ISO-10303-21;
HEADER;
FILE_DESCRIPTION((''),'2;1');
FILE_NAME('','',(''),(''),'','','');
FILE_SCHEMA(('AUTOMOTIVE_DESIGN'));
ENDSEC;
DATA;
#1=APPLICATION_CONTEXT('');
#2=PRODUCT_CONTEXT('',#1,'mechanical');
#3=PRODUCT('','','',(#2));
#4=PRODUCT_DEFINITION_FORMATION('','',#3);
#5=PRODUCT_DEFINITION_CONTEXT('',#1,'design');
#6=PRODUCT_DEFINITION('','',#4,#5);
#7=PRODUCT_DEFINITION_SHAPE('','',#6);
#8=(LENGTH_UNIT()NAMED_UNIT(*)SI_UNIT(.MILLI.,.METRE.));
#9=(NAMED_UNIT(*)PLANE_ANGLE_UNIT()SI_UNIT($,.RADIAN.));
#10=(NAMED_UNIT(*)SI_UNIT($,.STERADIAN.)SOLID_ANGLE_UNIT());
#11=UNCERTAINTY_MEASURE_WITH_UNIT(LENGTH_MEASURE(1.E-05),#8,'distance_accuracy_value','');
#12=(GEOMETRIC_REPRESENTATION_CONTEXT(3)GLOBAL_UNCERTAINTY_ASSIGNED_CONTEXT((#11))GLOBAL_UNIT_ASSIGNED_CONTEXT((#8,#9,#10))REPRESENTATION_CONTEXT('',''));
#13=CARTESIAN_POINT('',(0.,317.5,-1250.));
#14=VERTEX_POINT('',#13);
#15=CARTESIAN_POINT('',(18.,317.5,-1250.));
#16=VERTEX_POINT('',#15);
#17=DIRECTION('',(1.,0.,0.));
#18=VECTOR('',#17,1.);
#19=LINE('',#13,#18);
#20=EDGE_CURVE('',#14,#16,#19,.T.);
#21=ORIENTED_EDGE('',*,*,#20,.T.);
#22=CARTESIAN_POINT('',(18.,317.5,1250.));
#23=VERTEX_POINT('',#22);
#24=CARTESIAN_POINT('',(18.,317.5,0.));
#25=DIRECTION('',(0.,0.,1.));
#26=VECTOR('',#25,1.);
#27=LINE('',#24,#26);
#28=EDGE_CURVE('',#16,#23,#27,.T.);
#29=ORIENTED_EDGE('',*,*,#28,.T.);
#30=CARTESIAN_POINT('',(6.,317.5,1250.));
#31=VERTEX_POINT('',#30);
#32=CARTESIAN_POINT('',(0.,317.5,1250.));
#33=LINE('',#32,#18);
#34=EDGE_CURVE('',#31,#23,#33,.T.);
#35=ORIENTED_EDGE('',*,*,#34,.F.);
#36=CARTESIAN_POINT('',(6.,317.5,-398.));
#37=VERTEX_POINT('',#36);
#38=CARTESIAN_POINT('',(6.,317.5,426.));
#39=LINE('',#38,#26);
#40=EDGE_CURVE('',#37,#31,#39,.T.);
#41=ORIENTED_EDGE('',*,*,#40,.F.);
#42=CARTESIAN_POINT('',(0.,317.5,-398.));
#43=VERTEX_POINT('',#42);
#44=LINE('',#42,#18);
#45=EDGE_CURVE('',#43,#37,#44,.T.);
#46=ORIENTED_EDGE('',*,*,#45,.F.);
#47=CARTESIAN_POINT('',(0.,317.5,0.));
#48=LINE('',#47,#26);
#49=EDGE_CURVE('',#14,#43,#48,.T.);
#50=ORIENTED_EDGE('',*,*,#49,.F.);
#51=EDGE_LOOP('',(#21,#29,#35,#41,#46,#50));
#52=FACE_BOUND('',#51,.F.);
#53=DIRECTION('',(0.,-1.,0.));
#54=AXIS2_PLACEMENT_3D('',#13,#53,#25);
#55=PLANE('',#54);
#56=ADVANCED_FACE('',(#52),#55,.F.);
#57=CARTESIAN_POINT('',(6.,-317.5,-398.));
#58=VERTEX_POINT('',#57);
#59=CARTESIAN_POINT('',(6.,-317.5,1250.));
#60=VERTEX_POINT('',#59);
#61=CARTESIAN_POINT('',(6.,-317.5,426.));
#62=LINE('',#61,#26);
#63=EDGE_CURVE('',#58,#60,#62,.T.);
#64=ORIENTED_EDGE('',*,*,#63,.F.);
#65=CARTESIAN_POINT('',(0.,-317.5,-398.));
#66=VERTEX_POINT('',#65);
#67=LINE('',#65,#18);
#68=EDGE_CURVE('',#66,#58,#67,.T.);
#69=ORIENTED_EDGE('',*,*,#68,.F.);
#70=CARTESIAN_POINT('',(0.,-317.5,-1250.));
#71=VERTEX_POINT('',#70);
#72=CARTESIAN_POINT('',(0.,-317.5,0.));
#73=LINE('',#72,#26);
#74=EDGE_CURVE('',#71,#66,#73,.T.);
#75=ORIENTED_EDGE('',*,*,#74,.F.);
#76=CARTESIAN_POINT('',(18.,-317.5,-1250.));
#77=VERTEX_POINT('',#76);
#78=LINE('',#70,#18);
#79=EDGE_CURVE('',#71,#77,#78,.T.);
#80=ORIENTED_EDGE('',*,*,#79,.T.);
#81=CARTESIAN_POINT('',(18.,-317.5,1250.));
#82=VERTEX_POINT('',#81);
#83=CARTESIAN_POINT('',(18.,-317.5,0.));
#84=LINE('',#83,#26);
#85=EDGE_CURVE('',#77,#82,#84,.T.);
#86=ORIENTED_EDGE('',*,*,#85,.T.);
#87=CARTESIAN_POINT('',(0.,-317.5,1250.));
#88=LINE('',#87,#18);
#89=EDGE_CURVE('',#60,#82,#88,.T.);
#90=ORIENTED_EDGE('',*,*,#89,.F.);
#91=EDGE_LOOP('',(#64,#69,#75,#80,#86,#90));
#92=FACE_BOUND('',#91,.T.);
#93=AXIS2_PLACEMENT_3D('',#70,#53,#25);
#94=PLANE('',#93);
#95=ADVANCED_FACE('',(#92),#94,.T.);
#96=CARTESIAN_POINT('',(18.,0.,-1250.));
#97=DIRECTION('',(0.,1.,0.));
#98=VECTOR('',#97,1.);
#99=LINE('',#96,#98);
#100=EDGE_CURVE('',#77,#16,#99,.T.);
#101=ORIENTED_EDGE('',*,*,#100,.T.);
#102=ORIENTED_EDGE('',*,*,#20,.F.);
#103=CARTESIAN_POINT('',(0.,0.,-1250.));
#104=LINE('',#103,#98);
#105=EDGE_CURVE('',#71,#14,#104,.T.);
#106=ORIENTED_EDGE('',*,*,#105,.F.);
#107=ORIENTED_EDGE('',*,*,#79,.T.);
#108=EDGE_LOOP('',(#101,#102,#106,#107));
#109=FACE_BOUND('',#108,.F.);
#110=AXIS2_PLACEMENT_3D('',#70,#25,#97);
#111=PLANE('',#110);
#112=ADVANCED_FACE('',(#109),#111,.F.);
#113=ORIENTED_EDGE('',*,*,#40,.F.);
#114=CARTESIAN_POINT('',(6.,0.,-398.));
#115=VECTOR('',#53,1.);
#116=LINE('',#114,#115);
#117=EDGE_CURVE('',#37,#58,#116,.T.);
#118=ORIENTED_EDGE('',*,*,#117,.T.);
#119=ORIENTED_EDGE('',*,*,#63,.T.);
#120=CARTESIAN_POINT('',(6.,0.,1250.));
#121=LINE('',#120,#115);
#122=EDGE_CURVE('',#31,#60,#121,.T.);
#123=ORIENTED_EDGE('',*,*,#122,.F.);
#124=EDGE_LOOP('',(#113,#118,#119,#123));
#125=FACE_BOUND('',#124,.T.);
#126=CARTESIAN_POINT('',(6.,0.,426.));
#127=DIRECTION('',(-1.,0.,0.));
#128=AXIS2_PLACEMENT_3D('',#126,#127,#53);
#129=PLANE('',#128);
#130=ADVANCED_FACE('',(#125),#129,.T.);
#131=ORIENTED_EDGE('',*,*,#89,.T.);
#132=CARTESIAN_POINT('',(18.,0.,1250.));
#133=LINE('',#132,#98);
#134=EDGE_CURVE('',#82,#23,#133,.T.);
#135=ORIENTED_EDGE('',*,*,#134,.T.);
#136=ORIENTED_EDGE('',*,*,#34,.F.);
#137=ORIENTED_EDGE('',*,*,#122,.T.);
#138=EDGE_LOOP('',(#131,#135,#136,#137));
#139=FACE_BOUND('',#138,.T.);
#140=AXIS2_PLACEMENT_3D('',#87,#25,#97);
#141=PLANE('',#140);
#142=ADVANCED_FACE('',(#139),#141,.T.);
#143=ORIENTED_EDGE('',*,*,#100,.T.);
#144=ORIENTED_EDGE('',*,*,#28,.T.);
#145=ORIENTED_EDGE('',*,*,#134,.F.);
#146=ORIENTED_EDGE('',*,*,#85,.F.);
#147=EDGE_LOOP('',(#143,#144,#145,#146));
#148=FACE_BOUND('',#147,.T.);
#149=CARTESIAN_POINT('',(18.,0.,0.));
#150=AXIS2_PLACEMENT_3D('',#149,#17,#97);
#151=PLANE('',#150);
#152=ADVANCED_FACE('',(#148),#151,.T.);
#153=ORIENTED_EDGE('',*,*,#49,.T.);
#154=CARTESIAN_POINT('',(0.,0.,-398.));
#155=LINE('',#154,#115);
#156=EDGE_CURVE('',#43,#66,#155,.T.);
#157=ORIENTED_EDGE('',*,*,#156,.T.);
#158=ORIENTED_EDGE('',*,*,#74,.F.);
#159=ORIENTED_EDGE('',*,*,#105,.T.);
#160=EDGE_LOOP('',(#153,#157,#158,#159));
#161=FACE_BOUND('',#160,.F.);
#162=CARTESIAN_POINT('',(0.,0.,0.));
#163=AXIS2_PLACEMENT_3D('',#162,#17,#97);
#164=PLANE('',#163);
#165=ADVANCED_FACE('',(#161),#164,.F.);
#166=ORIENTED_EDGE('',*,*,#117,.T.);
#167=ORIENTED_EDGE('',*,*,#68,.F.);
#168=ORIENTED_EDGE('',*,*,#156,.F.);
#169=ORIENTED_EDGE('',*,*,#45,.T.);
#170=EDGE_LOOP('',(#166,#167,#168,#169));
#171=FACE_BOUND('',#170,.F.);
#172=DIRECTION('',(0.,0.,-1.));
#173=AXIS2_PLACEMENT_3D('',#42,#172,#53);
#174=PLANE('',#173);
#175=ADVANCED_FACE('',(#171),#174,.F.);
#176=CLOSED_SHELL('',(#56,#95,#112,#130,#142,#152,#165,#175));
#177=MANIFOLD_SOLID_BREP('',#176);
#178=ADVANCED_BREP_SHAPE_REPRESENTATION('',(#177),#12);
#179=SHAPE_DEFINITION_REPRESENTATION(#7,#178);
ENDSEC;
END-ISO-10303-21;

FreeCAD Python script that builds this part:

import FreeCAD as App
import Part
import Sketcher
from FreeCAD import Vector
Q = App.Units.Quantity

doc = App.newDocument("Part")
body = doc.addObject("PartDesign::Body", "Body")

sketch1 = body.newObject("Sketcher::SketchObject", "Sketch")
sketch1.AttachmentSupport = (doc.getObject("YZ_Plane"), [""])
sketch1.MapMode = "FlatFace"
sketch1.addGeometry([
    Part.LineSegment(Vector(-318, 1250, 0), Vector(-318, -1250, 0)),
    Part.LineSegment(Vector(-318, -1250, 0), Vector(318, -1250, 0)),
    Part.LineSegment(Vector(318, -1250, 0), Vector(318, 1250, 0)),
    Part.LineSegment(Vector(318, 1250, 0), Vector(-318, 1250, 0)),
], False)
sketch1.addConstraint([
    Sketcher.Constraint("Coincident", 0, 2, 1, 1),
    Sketcher.Constraint("Coincident", 1, 2, 2, 1),
    Sketcher.Constraint("Coincident", 2, 2, 3, 1),
    Sketcher.Constraint("Coincident", 3, 2, 0, 1),
    Sketcher.Constraint("Vertical", 0),
    Sketcher.Constraint("Horizontal", 1),
    Sketcher.Constraint("Vertical", 2),
    Sketcher.Constraint("Horizontal", 3),
    Sketcher.Constraint("Symmetric", 0, 2, 2, 2, -1, 1),
    Sketcher.Constraint("DistanceX", 1, 1, 1, 2, Q("635 mm")),
    Sketcher.Constraint("DistanceY", 0, 2, 0, 1, Q("2500 mm")),
])
pad1 = body.newObject("PartDesign::Pad", "Pad")
pad1.Profile = sketch1
pad1.Length = 18

sketch2 = body.newObject("Sketcher::SketchObject", "Sketch001")
sketch2.AttachmentSupport = (doc.getObject("YZ_Plane"), [""])
sketch2.MapMode = "FlatFace"
sketch2.addGeometry([
    Part.LineSegment(Vector(318, 1250, 0), Vector(318, -398, 0)),
    Part.LineSegment(Vector(318, -398, 0), Vector(-318, -398, 0)),
    Part.LineSegment(Vector(-318, -398, 0), Vector(-318, 1250, 0)),
    Part.LineSegment(Vector(-318, 1250, 0), Vector(318, 1250, 0)),
], False)
sketch2.addConstraint([
    Sketcher.Constraint("Coincident", 0, 2, 1, 1),
    Sketcher.Constraint("Coincident", 1, 2, 2, 1),
    Sketcher.Constraint("Coincident", 2, 2, 3, 1),
    Sketcher.Constraint("Coincident", 3, 2, 0, 1),
    Sketcher.Constraint("Vertical", 0),
    Sketcher.Constraint("Horizontal", 1),
    Sketcher.Constraint("Vertical", 2),
    Sketcher.Constraint("Horizontal", 3),
    Sketcher.Constraint("DistanceX", 1, 2, 1, 1, Q("635 mm")),
    Sketcher.Constraint("DistanceY", 0, 2, 0, 1, Q("1648 mm")),
    Sketcher.Constraint("DistanceY", 0, 2, -1, 1, Q("398 mm")),
    Sketcher.Constraint("DistanceX", -1, 1, 0, 2, Q("317.5 mm")),
])
pocket1 = body.newObject("PartDesign::Pocket", "Pocket")
pocket1.Profile = sketch2
pocket1.Length = 6
pocket1.Reversed = True

doc.recompute()
